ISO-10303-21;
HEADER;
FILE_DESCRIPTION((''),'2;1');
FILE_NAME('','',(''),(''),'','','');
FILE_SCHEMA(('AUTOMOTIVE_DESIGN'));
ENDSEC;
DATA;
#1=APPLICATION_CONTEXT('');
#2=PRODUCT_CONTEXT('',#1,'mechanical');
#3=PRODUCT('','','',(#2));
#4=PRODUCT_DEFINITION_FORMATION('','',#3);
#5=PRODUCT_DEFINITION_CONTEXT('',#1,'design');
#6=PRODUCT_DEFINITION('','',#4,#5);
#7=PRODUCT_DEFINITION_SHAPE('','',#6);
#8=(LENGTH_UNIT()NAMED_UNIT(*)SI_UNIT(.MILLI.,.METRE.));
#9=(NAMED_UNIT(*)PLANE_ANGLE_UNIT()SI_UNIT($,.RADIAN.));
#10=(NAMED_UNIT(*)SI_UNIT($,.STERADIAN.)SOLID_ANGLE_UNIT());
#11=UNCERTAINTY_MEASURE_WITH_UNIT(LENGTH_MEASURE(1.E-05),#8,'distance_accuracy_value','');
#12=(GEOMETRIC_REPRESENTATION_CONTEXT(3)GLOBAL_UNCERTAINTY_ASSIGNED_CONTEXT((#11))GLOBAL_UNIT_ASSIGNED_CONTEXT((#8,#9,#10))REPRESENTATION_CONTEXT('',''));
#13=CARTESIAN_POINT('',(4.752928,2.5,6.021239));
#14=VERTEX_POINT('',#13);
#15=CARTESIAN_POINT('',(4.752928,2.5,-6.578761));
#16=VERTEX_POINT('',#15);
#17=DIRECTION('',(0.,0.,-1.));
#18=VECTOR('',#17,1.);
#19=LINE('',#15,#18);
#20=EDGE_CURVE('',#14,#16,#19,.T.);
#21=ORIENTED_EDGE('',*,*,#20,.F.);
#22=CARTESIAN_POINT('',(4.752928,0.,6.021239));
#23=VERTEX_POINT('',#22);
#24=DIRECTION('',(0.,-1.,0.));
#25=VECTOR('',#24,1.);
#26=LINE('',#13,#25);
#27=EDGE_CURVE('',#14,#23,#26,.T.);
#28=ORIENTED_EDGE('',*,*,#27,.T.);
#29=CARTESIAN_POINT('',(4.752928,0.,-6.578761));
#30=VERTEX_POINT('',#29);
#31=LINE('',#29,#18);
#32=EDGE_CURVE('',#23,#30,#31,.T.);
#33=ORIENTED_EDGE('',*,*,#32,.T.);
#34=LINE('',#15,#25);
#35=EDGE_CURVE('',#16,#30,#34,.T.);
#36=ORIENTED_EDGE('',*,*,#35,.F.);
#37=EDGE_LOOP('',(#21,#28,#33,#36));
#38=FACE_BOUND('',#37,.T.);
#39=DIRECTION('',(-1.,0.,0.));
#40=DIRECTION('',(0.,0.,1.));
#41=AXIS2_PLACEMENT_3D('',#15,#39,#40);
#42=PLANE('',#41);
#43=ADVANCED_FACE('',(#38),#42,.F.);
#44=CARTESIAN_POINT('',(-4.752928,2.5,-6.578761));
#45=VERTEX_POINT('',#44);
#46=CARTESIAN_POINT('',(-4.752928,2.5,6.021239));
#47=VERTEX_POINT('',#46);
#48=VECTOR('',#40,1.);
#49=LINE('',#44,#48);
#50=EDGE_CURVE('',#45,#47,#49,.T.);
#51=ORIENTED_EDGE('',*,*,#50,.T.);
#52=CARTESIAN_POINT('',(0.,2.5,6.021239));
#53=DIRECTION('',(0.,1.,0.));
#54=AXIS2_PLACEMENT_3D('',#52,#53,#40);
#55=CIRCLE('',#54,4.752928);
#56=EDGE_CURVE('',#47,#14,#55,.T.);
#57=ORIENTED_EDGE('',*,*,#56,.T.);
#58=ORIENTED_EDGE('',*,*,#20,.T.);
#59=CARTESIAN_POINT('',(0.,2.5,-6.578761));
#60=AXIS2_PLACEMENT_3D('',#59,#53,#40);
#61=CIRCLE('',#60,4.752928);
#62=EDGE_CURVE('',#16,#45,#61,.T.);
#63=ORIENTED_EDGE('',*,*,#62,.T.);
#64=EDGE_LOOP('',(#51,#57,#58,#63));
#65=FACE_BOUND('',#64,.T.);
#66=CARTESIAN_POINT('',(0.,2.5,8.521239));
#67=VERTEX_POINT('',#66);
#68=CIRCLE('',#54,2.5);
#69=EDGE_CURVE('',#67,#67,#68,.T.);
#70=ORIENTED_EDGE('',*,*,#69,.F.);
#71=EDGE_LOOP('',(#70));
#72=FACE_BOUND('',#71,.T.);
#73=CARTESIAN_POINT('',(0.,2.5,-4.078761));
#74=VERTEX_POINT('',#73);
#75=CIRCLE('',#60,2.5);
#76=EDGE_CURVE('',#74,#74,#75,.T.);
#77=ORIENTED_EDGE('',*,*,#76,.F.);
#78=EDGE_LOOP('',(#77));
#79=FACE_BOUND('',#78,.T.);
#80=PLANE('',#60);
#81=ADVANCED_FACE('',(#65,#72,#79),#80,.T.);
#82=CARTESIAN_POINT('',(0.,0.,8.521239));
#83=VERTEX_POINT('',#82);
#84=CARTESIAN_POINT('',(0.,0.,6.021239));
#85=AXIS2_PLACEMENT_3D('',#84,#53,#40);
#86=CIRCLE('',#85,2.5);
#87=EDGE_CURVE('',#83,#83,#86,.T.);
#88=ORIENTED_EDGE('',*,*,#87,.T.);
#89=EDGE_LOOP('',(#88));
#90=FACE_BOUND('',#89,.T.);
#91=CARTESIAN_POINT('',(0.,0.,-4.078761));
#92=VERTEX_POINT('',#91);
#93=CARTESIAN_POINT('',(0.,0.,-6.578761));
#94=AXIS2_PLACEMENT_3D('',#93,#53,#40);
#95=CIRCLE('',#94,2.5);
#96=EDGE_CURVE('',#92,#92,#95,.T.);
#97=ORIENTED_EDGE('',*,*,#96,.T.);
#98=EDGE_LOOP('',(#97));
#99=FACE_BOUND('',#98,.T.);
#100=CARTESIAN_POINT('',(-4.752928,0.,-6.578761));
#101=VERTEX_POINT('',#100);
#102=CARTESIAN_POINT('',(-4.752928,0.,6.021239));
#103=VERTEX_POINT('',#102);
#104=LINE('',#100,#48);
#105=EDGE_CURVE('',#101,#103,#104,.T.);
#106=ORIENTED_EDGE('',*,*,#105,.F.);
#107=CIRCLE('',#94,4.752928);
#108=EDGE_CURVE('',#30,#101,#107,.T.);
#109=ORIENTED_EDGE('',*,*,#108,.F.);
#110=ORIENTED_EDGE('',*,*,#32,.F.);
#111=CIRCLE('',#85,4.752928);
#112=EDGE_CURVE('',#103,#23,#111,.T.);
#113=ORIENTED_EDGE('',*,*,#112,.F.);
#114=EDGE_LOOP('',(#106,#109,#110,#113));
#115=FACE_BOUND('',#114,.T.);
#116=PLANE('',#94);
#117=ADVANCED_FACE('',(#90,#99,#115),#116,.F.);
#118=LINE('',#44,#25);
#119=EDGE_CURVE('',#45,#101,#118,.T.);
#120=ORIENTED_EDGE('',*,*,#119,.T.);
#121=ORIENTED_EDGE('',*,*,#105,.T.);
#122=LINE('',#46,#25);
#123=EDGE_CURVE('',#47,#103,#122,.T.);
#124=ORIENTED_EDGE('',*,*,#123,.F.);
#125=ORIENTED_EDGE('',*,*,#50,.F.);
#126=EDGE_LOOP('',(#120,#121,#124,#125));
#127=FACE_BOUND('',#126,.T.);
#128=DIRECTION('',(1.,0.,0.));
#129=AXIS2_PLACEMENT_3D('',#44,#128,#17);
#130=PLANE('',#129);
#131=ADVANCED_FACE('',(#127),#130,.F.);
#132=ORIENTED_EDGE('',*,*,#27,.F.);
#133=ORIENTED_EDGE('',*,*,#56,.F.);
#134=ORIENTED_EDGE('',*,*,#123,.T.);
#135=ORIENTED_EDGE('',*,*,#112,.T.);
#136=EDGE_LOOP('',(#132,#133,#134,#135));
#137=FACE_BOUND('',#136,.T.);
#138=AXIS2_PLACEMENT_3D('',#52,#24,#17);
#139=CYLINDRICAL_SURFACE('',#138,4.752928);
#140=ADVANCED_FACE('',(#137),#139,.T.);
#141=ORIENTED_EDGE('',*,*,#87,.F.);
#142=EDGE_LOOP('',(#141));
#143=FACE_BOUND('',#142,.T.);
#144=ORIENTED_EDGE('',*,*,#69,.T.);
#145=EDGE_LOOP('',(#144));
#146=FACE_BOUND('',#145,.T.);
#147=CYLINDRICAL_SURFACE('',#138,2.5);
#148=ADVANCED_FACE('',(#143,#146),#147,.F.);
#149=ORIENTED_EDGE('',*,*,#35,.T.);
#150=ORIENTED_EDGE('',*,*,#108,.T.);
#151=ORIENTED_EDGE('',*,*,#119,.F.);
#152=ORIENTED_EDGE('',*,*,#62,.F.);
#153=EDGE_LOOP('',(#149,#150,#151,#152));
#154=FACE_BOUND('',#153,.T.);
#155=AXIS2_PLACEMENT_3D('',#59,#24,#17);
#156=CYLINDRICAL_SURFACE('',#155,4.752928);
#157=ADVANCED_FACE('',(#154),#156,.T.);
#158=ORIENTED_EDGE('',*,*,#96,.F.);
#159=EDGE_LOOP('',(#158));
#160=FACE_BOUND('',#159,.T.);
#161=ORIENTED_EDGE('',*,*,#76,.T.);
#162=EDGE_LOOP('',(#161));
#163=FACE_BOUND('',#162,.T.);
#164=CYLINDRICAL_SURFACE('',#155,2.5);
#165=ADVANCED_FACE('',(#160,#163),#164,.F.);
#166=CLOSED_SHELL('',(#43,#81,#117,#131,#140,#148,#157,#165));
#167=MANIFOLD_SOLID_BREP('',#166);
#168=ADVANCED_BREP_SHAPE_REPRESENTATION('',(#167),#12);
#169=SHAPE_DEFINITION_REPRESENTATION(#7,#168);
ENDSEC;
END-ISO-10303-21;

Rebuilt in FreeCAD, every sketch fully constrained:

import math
import FreeCAD as App
import Part
import Sketcher
from FreeCAD import Vector

doc = App.newDocument("Part")
body = doc.addObject("PartDesign::Body", "Body")

# Sketch on XZ plane
sketch1 = doc.addObject("Sketcher::SketchObject", "Sketch")
body.addObject(sketch1)
sketch1.AttachmentSupport = (doc.XZ_Plane, [""])
sketch1.MapMode = "FlatFace"
sketch1.addGeometry([
    Part.LineSegment(Vector(4.752928, 6.021239, 0), Vector(4.752928, -6.578761, 0)),  # 0
    Part.ArcOfCircle(Part.Circle(Vector(0, -6.578761, 0), Vector(0, 0, 1), 4.752928), math.radians(180), math.radians(360)),  # 1
    Part.LineSegment(Vector(-4.752928, -6.578761, 0), Vector(-4.752928, 6.021239, 0)),  # 2
    Part.ArcOfCircle(Part.Circle(Vector(0, 6.021239, 0), Vector(0, 0, 1), 4.752928), math.radians(0), math.radians(180)),  # 3
    Part.Circle(Vector(0, 6.021239, 0), Vector(0, 0, 1), 2.5),  # 4
    Part.Circle(Vector(0, -6.578761, 0), Vector(0, 0, 1), 2.5),  # 5
], False)
sketch1.addConstraint([
    Sketcher.Constraint("Tangent", 0, 2, 1, 2),
    Sketcher.Constraint("Tangent", 1, 1, 2, 1),
    Sketcher.Constraint("Tangent", 2, 2, 3, 2),
    Sketcher.Constraint("Tangent", 3, 1, 0, 1),
    Sketcher.Constraint("Vertical", 0),
    Sketcher.Constraint("Vertical", 2),
    Sketcher.Constraint("Coincident", 4, 3, 3, 3),
    Sketcher.Constraint("Coincident", 5, 3, 1, 3),
    Sketcher.Constraint("Equal", 4, 5),
    Sketcher.Constraint("PointOnObject", 1, 3, -2),
    Sketcher.Constraint("Diameter", 4, 5.0),
    Sketcher.Constraint("DistanceY", 0, 2, 0, 1, 12.6),
    Sketcher.Constraint("Radius", 1, 4.752928),
    Sketcher.Constraint("DistanceY", 1, 3, -1, 1, 6.578761),
])
pad1 = doc.addObject("PartDesign::Pad", "Pad")
body.addObject(pad1)
pad1.Profile = sketch1
pad1.Length = 2.5
pad1.Reversed = True

doc.recompute()
